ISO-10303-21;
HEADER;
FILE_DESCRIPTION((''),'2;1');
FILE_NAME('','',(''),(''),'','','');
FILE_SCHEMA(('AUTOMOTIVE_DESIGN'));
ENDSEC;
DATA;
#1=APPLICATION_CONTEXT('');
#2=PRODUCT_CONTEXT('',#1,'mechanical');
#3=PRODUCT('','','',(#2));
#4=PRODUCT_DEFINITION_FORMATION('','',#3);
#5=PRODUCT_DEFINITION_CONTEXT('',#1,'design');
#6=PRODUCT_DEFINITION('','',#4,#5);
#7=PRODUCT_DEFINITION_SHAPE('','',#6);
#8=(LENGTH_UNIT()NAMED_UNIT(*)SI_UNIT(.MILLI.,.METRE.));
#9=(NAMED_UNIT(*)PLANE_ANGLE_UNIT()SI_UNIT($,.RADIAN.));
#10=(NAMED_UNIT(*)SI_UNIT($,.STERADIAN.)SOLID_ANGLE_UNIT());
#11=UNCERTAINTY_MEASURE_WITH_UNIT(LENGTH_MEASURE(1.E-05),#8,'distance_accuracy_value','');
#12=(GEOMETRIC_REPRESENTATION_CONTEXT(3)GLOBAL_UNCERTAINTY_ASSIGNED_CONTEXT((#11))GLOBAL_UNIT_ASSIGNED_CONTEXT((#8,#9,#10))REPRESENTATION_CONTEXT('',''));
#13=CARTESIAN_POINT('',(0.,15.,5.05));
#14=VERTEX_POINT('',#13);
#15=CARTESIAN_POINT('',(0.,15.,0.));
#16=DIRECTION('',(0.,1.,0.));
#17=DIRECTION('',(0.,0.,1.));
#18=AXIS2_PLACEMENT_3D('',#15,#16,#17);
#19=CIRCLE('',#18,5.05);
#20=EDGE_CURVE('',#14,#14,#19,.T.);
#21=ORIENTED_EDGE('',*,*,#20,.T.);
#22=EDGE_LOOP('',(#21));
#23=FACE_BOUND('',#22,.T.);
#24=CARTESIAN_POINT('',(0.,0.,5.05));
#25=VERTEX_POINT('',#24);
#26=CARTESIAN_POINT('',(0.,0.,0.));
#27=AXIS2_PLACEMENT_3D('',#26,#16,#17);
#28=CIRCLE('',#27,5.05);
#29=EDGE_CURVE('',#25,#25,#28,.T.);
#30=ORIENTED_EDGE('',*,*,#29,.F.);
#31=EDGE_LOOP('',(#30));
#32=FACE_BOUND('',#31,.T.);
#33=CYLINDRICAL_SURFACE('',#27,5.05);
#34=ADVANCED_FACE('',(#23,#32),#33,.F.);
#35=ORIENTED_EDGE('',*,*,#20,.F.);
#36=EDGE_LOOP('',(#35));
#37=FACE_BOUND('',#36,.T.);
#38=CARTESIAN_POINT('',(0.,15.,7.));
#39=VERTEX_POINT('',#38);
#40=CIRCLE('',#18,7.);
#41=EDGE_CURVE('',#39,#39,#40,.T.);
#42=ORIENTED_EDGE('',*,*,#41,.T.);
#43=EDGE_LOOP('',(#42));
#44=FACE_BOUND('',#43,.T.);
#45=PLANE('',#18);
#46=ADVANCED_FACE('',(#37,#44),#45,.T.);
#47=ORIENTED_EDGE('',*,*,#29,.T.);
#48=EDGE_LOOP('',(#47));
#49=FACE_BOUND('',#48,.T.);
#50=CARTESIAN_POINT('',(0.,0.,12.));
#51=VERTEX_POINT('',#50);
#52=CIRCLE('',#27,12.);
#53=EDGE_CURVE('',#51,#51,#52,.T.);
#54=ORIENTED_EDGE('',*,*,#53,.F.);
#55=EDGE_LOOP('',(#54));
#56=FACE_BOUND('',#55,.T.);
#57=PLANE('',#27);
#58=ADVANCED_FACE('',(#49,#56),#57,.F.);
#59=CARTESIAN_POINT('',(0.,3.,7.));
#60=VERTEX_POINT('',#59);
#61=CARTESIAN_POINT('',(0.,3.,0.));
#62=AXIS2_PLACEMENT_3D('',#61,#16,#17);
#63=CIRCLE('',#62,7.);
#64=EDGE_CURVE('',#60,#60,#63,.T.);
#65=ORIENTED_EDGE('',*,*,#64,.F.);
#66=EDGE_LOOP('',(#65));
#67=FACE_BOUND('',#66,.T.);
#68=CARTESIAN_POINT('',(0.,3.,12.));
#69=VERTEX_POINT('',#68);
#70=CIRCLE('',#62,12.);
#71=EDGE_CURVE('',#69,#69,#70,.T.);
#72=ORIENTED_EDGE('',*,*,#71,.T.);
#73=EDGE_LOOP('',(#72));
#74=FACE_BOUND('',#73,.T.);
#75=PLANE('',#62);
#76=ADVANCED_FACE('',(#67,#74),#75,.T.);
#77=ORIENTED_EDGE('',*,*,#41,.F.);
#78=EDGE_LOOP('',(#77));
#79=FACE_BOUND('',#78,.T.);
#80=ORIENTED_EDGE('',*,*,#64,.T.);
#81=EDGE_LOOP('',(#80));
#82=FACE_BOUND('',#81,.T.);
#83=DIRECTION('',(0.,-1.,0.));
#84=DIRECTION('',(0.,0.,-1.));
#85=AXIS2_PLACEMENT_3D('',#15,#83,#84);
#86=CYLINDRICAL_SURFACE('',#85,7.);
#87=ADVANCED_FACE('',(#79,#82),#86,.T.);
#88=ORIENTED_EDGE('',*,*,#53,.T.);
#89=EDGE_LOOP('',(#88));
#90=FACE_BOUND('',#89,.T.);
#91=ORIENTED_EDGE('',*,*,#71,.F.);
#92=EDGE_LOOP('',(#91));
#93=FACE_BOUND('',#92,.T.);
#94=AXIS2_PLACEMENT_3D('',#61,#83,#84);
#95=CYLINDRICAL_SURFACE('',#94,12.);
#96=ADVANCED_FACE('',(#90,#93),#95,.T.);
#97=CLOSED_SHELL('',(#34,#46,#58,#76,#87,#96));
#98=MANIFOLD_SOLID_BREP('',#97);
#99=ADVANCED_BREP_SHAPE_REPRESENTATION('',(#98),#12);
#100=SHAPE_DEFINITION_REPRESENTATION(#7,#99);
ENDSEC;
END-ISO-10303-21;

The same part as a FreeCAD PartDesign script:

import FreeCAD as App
import Part
import Sketcher
from FreeCAD import Vector
Q = App.Units.Quantity

doc = App.newDocument("Part")
body = doc.addObject("PartDesign::Body", "Body")

sketch1 = body.newObject("Sketcher::SketchObject", "Sketch")
sketch1.AttachmentSupport = (doc.getObject("XZ_Plane"), [""])
sketch1.MapMode = "FlatFace"
sketch1.addGeometry(Part.Circle(Vector(0, 0, 0), Vector(0, 0, 1), 12), False)
sketch1.addConstraint(Sketcher.Constraint("Coincident", 0, 3, -1, 1))
sketch1.addConstraint(Sketcher.Constraint("Diameter", 0, Q("24 mm")))
pad1 = body.newObject("PartDesign::Pad", "Pad")
pad1.Profile = sketch1
pad1.Length = 3
pad1.Reversed = True

sketch2 = body.newObject("Sketcher::SketchObject", "Sketch001")
sketch2.AttachmentSupport = (doc.getObject("XZ_Plane"), [""])
sketch2.MapMode = "FlatFace"
sketch2.AttachmentOffset = App.Placement(Vector(0, 0, -3), App.Rotation())
sketch2.addGeometry(Part.Circle(Vector(0, 0, 0), Vector(0, 0, 1), 7), False)
sketch2.addConstraint(Sketcher.Constraint("Coincident", 0, 3, -1, 1))
sketch2.addConstraint(Sketcher.Constraint("Diameter", 0, Q("14 mm")))
pad2 = body.newObject("PartDesign::Pad", "Pad001")
pad2.Profile = sketch2
pad2.Length = 12
pad2.Reversed = True

sketch3 = body.newObject("Sketcher::SketchObject", "Sketch002")
sketch3.AttachmentSupport = (doc.getObject("XZ_Plane"), [""])
sketch3.MapMode = "FlatFace"
sketch3.AttachmentOffset = App.Placement(Vector(0, 0, -15), App.Rotation())
sketch3.addGeometry(Part.Circle(Vector(0, 0, 0), Vector(0, 0, 1), 5.05), False)
sketch3.addConstraint(Sketcher.Constraint("Coincident", 0, 3, -1, 1))
sketch3.addConstraint(Sketcher.Constraint("Diameter", 0, Q("10.1 mm")))
pocket1 = body.newObject("PartDesign::Pocket", "Pocket")
pocket1.Profile = sketch3
pocket1.Type = "ThroughAll"
pocket1.Reversed = True

doc.recompute()
